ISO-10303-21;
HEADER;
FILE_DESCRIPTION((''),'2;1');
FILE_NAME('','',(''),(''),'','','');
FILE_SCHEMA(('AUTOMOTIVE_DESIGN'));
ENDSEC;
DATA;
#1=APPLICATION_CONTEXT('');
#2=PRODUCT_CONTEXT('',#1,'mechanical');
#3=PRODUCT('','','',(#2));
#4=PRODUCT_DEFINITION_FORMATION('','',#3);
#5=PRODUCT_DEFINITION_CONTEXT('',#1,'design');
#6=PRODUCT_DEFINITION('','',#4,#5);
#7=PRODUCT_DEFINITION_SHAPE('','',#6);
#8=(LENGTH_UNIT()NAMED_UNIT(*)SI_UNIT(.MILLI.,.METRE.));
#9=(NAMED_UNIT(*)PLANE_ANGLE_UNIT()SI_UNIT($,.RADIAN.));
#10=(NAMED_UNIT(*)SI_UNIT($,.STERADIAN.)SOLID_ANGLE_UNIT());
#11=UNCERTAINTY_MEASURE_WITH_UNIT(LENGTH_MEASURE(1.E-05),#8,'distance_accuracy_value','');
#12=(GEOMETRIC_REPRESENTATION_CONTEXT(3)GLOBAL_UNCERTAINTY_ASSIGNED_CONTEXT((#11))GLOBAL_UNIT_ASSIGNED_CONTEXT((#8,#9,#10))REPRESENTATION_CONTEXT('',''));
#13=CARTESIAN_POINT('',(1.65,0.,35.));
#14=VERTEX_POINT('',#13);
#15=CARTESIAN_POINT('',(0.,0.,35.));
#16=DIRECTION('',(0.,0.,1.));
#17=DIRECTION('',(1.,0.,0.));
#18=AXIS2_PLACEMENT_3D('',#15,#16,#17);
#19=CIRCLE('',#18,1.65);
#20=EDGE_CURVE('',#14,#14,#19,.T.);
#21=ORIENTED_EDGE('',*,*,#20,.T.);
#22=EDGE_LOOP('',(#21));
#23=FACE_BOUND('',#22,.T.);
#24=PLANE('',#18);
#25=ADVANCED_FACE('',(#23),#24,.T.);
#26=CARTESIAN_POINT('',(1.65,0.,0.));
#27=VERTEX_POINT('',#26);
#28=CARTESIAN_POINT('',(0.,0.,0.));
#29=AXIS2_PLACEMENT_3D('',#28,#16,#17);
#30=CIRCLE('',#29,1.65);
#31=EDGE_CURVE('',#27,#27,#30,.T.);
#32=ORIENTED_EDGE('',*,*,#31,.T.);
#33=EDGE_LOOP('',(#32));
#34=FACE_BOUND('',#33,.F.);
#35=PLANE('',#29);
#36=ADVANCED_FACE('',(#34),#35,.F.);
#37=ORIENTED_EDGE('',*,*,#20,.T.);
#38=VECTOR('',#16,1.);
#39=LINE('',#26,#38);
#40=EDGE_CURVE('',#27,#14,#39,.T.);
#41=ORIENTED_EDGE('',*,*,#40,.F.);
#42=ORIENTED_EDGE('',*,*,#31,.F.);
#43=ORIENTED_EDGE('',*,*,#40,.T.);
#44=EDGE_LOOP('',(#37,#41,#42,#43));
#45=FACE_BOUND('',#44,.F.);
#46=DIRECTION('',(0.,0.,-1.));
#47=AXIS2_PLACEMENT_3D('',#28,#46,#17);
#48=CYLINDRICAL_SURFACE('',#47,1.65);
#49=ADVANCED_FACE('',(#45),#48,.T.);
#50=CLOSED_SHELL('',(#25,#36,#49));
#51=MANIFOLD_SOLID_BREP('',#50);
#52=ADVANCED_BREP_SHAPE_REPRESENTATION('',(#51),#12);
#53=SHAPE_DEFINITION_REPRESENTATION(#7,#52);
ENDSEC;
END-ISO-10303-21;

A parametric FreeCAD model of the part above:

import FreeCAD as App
import Part
import Sketcher

V = App.Vector

doc = App.newDocument("Part")
body = doc.addObject("PartDesign::Body", "Body")

sketch1 = body.newObject("Sketcher::SketchObject", "Sketch")
sketch1.AttachmentSupport = (doc.getObject("XY_Plane"), [""])
sketch1.MapMode = "FlatFace"
sketch1.addGeometry(Part.Circle(V(0, 0, 0), V(0, 0, 1), 1.6), False)
sketch1.addConstraint([
    Sketcher.Constraint("Coincident", 0, 3, -1, 1),
    Sketcher.Constraint("Diameter", 0, 3.3),
])
pad1 = body.newObject("PartDesign::Pad", "Pad")
pad1.Profile = sketch1
pad1.Length = 35

doc.recompute()
